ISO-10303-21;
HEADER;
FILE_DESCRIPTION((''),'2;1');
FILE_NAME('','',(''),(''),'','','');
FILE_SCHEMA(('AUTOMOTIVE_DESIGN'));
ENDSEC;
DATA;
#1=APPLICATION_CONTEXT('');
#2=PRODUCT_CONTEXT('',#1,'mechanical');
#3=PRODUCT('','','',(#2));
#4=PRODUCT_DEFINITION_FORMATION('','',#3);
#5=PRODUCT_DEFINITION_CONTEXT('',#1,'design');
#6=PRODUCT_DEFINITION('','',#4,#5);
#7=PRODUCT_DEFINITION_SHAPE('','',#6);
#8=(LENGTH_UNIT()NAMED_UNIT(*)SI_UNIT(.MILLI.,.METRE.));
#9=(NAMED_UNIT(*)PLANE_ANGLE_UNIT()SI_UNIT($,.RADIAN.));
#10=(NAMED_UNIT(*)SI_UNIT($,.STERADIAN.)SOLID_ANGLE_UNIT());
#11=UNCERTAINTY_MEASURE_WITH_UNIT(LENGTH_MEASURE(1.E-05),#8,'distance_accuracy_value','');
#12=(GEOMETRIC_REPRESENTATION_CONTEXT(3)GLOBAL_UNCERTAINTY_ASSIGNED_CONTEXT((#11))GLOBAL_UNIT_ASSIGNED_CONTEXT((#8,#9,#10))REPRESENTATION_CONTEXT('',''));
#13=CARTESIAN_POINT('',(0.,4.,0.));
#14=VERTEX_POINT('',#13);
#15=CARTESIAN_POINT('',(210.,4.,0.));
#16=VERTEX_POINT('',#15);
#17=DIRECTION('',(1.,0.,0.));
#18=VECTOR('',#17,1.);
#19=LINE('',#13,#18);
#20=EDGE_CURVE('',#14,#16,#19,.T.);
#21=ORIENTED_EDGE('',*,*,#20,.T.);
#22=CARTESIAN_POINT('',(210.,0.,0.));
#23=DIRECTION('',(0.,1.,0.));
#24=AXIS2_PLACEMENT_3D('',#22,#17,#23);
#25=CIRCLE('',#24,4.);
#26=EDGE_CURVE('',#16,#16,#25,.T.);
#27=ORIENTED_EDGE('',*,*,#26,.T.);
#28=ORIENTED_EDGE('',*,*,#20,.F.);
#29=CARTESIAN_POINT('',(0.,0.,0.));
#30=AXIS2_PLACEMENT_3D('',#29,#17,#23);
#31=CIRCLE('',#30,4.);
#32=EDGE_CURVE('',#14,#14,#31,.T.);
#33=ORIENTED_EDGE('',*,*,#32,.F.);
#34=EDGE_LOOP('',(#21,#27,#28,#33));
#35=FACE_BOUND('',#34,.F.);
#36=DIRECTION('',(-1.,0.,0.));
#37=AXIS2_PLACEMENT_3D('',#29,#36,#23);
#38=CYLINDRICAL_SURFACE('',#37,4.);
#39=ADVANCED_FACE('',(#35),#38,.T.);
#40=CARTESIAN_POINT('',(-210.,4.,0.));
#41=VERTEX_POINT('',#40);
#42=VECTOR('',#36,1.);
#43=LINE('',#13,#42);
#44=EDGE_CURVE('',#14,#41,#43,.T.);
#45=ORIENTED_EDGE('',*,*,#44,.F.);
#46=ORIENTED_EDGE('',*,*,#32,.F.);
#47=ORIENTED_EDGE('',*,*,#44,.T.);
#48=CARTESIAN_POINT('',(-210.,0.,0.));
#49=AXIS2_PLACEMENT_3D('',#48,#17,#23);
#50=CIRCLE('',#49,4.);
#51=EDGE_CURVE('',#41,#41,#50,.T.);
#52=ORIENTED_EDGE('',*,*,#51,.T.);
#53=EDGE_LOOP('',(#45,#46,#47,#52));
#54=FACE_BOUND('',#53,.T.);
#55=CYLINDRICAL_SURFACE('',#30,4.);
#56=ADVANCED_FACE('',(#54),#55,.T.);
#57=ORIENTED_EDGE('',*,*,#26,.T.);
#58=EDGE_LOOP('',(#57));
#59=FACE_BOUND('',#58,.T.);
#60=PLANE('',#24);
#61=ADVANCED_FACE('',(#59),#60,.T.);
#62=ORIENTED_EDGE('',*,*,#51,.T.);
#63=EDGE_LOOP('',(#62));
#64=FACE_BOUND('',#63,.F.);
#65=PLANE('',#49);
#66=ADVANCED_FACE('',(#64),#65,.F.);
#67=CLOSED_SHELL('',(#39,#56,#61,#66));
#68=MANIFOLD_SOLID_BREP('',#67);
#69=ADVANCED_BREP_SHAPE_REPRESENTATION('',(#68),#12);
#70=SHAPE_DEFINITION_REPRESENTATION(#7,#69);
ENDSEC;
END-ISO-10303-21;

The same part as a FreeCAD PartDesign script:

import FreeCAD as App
import Part
import Sketcher

doc = App.newDocument("Part")
body = doc.addObject("PartDesign::Body", "Body")

# Sketch on YZ plane
sketch1 = body.newObject("Sketcher::SketchObject", "Sketch")
sketch1.AttachmentSupport = (doc.getObject("YZ_Plane"), [""])
sketch1.MapMode = "FlatFace"
sketch1.addGeometry(Part.Circle(App.Vector(0, 0, 0), App.Vector(0, 0, 1), 4), False)
sketch1.addConstraint(Sketcher.Constraint("Coincident", 0, 3, -1, 1))
sketch1.addConstraint(Sketcher.Constraint("Diameter", 0, 8.0))
pad1 = body.newObject("PartDesign::Pad", "Pad")
pad1.Profile = sketch1
pad1.Length = 420
pad1.Midplane = True

doc.recompute()
